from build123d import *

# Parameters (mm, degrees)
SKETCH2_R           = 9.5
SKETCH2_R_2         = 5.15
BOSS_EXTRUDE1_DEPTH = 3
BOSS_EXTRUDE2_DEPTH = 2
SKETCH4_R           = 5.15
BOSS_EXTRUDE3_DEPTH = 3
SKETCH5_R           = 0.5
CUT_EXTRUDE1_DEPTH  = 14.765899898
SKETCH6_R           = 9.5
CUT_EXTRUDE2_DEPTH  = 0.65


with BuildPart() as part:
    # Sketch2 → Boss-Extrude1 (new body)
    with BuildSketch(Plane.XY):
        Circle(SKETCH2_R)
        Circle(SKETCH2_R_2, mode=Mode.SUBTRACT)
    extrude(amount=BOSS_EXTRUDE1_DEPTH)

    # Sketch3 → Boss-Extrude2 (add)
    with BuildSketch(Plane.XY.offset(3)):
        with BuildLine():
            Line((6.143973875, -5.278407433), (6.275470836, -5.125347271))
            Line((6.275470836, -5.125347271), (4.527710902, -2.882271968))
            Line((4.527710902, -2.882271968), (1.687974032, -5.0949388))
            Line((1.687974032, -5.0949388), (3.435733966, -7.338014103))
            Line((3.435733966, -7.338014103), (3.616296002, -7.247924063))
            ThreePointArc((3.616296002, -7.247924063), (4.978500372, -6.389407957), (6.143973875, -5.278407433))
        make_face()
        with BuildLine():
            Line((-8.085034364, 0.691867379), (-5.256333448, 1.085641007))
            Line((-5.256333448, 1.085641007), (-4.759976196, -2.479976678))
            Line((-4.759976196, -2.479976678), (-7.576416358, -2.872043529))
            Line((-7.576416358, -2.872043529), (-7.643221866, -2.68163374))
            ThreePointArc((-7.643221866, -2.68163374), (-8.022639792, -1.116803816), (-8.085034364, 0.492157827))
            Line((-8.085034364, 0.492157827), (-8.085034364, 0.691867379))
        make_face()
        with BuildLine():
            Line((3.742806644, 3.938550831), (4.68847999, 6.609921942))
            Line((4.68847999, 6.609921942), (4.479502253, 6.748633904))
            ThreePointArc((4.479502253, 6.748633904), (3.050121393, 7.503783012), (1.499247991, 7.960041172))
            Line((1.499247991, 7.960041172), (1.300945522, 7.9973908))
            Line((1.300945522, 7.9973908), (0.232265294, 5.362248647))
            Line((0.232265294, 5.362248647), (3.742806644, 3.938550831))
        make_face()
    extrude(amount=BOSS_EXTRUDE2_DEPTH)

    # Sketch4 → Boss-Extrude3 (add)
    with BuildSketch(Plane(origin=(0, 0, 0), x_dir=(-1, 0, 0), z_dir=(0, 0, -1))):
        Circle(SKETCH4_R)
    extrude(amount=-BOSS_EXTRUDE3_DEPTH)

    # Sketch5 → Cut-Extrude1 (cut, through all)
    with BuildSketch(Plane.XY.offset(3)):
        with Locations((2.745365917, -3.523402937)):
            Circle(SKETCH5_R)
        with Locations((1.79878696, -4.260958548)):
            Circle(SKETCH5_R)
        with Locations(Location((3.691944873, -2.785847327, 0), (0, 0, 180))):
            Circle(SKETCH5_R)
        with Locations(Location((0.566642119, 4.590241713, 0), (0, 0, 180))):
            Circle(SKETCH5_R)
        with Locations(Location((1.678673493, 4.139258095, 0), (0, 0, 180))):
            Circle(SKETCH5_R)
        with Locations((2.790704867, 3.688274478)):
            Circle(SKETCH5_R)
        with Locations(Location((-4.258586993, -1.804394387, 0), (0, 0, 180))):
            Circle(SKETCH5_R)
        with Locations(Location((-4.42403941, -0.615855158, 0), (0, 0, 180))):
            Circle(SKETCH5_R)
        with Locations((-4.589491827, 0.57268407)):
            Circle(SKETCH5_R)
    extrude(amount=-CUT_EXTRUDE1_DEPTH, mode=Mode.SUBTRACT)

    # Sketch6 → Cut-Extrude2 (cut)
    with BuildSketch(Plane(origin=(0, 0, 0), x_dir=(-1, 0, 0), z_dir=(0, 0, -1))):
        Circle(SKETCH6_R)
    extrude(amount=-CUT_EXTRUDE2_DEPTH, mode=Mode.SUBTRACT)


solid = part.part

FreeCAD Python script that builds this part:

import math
import FreeCAD as App
import Part
import Sketcher

doc = App.newDocument("Part")
body = doc.addObject("PartDesign::Body", "Body")

# Sketch on XY plane
sketch1 = doc.addObject("Sketcher::SketchObject", "Sketch")
body.addObject(sketch1)
sketch1.AttachmentSupport = (doc.XY_Plane, [""])
sketch1.MapMode = "FlatFace"
sketch1.addGeometry([
    Part.Circle(App.Vector(0, 0, 0), App.Vector(0, 0, 1), 10),
    Part.Circle(App.Vector(0, 0, 0), App.Vector(0, 0, 1), 5),
], False)
sketch1.addConstraint([
    Sketcher.Constraint("Coincident", 0, 3, -1, 1),
    Sketcher.Constraint("Coincident", 1, 3, -1, 1),
    Sketcher.Constraint("Diameter", 0, 19.0),
    Sketcher.Constraint("Diameter", 1, 10.3),
])
pad1 = doc.addObject("PartDesign::Pad", "Pad")
body.addObject(pad1)
pad1.Profile = sketch1
pad1.Length = 3

# Sketch on XY plane
sketch2 = doc.addObject("Sketcher::SketchObject", "Sketch001")
body.addObject(sketch2)
sketch2.AttachmentSupport = (doc.XY_Plane, [""])
sketch2.MapMode = "FlatFace"
sketch2.AttachmentOffset = App.Placement(App.Vector(0, 0, 3), App.Rotation())
sketch2.addGeometry([
    Part.LineSegment(App.Vector(6.143974, -5.278407, 0), App.Vector(6.275471, -5.125347, 0)),  # 0
    Part.LineSegment(App.Vector(6.275471, -5.125347, 0), App.Vector(4.527711, -2.882272, 0)),  # 1
    Part.LineSegment(App.Vector(4.527711, -2.882272, 0), App.Vector(1.687974, -5.094939, 0)),  # 2
    Part.LineSegment(App.Vector(1.687974, -5.094939, 0), App.Vector(3.435734, -7.338014, 0)),  # 3
    Part.LineSegment(App.Vector(3.435734, -7.338014, 0), App.Vector(3.616296, -7.247924, 0)),  # 4
    Part.ArcOfCircle(Part.Circle(App.Vector(0, 0, 0), App.Vector(0, 0, 1), 8.1), math.radians(-63.48345), math.radians(-40.666516)),  # 5
    Part.LineSegment(App.Vector(-5.256333, 1.085641, 0), App.Vector(-8.085034, 0.691867, 0)),  # 6
    Part.LineSegment(App.Vector(-8.085034, 0.691867, 0), App.Vector(-8.085034, 0.492158, 0)),  # 7
    Part.ArcOfCircle(Part.Circle(App.Vector(0, 0, 0), App.Vector(0, 0, 1), 8.1), math.radians(176.51655), math.radians(199.333484)),  # 8
    Part.LineSegment(App.Vector(-7.643222, -2.681634, 0), App.Vector(-7.576416, -2.872044, 0)),  # 9
    Part.LineSegment(App.Vector(-7.576416, -2.872044, 0), App.Vector(-4.759976, -2.479977, 0)),  # 10
    Part.LineSegment(App.Vector(-4.759976, -2.479977, 0), App.Vector(-5.256333, 1.085641, 0)),  # 11
    Part.LineSegment(App.Vector(3.742807, 3.938551, 0), App.Vector(4.68848, 6.609922, 0)),  # 12
    Part.LineSegment(App.Vector(4.68848, 6.609922, 0), App.Vector(4.479502, 6.748634, 0)),  # 13
    Part.ArcOfCircle(Part.Circle(App.Vector(0, 0, 0), App.Vector(0, 0, 1), 8.1), math.radians(56.425213), math.radians(79.333484)),  # 14
    Part.LineSegment(App.Vector(1.499248, 7.960041, 0), App.Vector(1.300946, 7.997391, 0)),  # 15
    Part.LineSegment(App.Vector(1.300946, 7.997391, 0), App.Vector(0.232265, 5.362249, 0)),  # 16
    Part.LineSegment(App.Vector(0.232265, 5.362249, 0), App.Vector(3.742807, 3.938551, 0)),  # 17
], False)
sketch2.addConstraint([
    Sketcher.Constraint("Coincident", 0, 2, 1, 1),
    Sketcher.Constraint("Coincident", 1, 2, 2, 1),
    Sketcher.Constraint("Coincident", 2, 2, 3, 1),
    Sketcher.Constraint("Coincident", 3, 2, 4, 1),
    Sketcher.Constraint("Coincident", 4, 2, 5, 1),
    Sketcher.Constraint("Coincident", 5, 2, 0, 1),
    Sketcher.Constraint("Coincident", 6, 2, 7, 1),
    Sketcher.Constraint("Coincident", 7, 2, 8, 1),
    Sketcher.Constraint("Coincident", 8, 2, 9, 1),
    Sketcher.Constraint("Coincident", 9, 2, 10, 1),
    Sketcher.Constraint("Coincident", 10, 2, 11, 1),
    Sketcher.Constraint("Coincident", 11, 2, 6, 1),
    Sketcher.Constraint("Coincident", 12, 2, 13, 1),
    Sketcher.Constraint("Coincident", 13, 2, 14, 1),
    Sketcher.Constraint("Coincident", 14, 2, 15, 1),
    Sketcher.Constraint("Coincident", 15, 2, 16, 1),
    Sketcher.Constraint("Coincident", 16, 2, 17, 1),
    Sketcher.Constraint("Coincident", 17, 2, 12, 1),
    Sketcher.Constraint("Vertical", 7),
    Sketcher.Constraint("Coincident", 5, 3, -1, 1),
    Sketcher.Constraint("Coincident", 8, 3, -1, 1),
    Sketcher.Constraint("Coincident", 14, 3, -1, 1),
    Sketcher.Constraint("Radius", 5, 8.1),
    Sketcher.Constraint("Radius", 8, 8.1),
    Sketcher.Constraint("Radius", 14, 8.1),
    Sketcher.Constraint("Distance", 2, 3.6),
    Sketcher.Constraint("Distance", 11, 3.6),
    Sketcher.Constraint("DistanceX", 2, 2, 5, 2, 4.456),
    Sketcher.Constraint("Distance", 1, 2.843598),
    Sketcher.Constraint("Distance", 3, 2.843598),
    Sketcher.Constraint("Distance", 10, 2.843598),
    Sketcher.Constraint("Distance", 16, 2.843598),
    Sketcher.Constraint("DistanceY", 7, 2, 7, 1, 0.19971),
    Sketcher.Constraint("DistanceY", 8, 2, 6, 2, 3.373501),
    Sketcher.Constraint("DistanceY", 9, 2, 7, 2, 3.364201),
    Sketcher.Constraint("DistanceX", 6, 2, 11, 2, 2.828701),
    Sketcher.Constraint("Distance", 0, 0.201789),
    Sketcher.Constraint("Distance", 4, 0.201789),
    Sketcher.Constraint("Distance", 9, 0.201789),
    Sketcher.Constraint("Distance", 15, 0.201789),
    Sketcher.Constraint("DistanceX", -1, 1, 0, 2, 6.275471),
    Sketcher.Constraint("DistanceX", -1, 1, 1, 2, 4.527711),
    Sketcher.Constraint("DistanceY", 1, 2, -1, 1, 2.882272),
    Sketcher.Constraint("DistanceX", 8, 2, -1, 1, 7.643222),
    Sketcher.Constraint("DistanceY", -1, 1, 11, 2, 1.085641),
    Sketcher.Constraint("DistanceX", -1, 1, 12, 2, 4.68848),
    Sketcher.Constraint("DistanceY", -1, 1, 12, 2, 6.609922),
    Sketcher.Constraint("DistanceY", -1, 1, 14, 2, 7.960041),
    Sketcher.Constraint("DistanceY", -1, 1, 15, 2, 7.997391),
    Sketcher.Constraint("DistanceY", -1, 1, 16, 2, 5.362249),
    Sketcher.Constraint("DistanceY", -1, 1, 17, 2, 3.938551),
    Sketcher.Constraint("DistanceX", 2, 2, 3, 2, 1.74776),
    Sketcher.Constraint("DistanceY", 12, 2, 13, 2, 0.138712),
    Sketcher.Constraint("DistanceX", 16, 2, 17, 2, 3.510541),
])
pad2 = doc.addObject("PartDesign::Pad", "Pad001")
body.addObject(pad2)
pad2.Profile = sketch2
pad2.Length = 2

# Sketch on XY plane
sketch3 = doc.addObject("Sketcher::SketchObject", "Sketch002")
body.addObject(sketch3)
sketch3.AttachmentSupport = (doc.XY_Plane, [""])
sketch3.MapMode = "FlatFace"
sketch3.addGeometry(Part.Circle(App.Vector(0, 0, 0), App.Vector(0, 0, 1), 5), False)
sketch3.addConstraint([
    Sketcher.Constraint("Coincident", 0, 3, -1, 1),
    Sketcher.Constraint("Diameter", 0, 10.3),
])
pad3 = doc.addObject("PartDesign::Pad", "Pad002")
body.addObject(pad3)
pad3.Profile = sketch3
pad3.Length = 3

# Sketch on XY plane
sketch4 = doc.addObject("Sketcher::SketchObject", "Sketch003")
body.addObject(sketch4)
sketch4.AttachmentSupport = (doc.XY_Plane, [""])
sketch4.MapMode = "FlatFace"
sketch4.AttachmentOffset = App.Placement(App.Vector(0, 0, 3), App.Rotation())
sketch4.addGeometry([
    Part.Circle(App.Vector(2.7, -3.5, 0), App.Vector(0, 0, 1), 0.5),  # 0
    Part.Circle(App.Vector(1.8, -4.3, 0), App.Vector(0, 0, 1), 0.5),  # 1
    Part.Circle(App.Vector(3.7, -2.8, 0), App.Vector(0, 0, 1), 0.5),  # 2
    Part.Circle(App.Vector(0.6, 4.6, 0), App.Vector(0, 0, 1), 0.5),  # 3
    Part.Circle(App.Vector(1.7, 4.1, 0), App.Vector(0, 0, 1), 0.5),  # 4
    Part.Circle(App.Vector(2.8, 3.7, 0), App.Vector(0, 0, 1), 0.5),  # 5
    Part.Circle(App.Vector(-4.3, -1.8, 0), App.Vector(0, 0, 1), 0.5),  # 6
    Part.Circle(App.Vector(-4.4, -0.6, 0), App.Vector(0, 0, 1), 0.5),  # 7
    Part.Circle(App.Vector(-4.6, 0.6, 0), App.Vector(0, 0, 1), 0.5),  # 8
], False)
sketch4.addConstraint([
    Sketcher.Constraint("Equal", 0, 1),
    Sketcher.Constraint("Equal", 1, 2),
    Sketcher.Constraint("Equal", 2, 3),
    Sketcher.Constraint("Equal", 3, 4),
    Sketcher.Constraint("Equal", 4, 5),
    Sketcher.Constraint("Equal", 5, 6),
    Sketcher.Constraint("Equal", 6, 7),
    Sketcher.Constraint("Equal", 7, 8),
    Sketcher.Constraint("Diameter", 0, 1.0),
    Sketcher.Constraint("DistanceY", 1, 3, 3, 3, 8.8512),
    Sketcher.Constraint("DistanceY", 1, 3, -1, 1, 4.260959),
    Sketcher.Constraint("DistanceY", -1, 1, 4, 3, 4.139258),
    Sketcher.Constraint("DistanceX", 7, 3, -1, 1, 4.424039),
    Sketcher.Constraint("DistanceX", 8, 3, -1, 1, 4.589492),
    Sketcher.Constraint("DistanceX", 1, 3, 0, 3, 0.946579),
    Sketcher.Constraint("DistanceX", 0, 3, 2, 3, 0.946579),
    Sketcher.Constraint("DistanceY", 1, 3, 2, 3, 1.475111),
    Sketcher.Constraint("DistanceX", 3, 3, 4, 3, 1.112031),
    Sketcher.Constraint("DistanceX", 4, 3, 2, 3, 2.013271),
    Sketcher.Constraint("DistanceY", 0, 3, 4, 3, 7.662661),
    Sketcher.Constraint("DistanceX", 4, 3, 5, 3, 1.112031),
    Sketcher.Constraint("DistanceY", 2, 3, 5, 3, 6.474122),
    Sketcher.Constraint("DistanceY", 0, 3, 6, 3, 1.719009),
    Sketcher.Constraint("DistanceX", 6, 3, 2, 3, 7.950532),
    Sketcher.Constraint("DistanceY", 6, 3, 7, 3, 1.188539),
    Sketcher.Constraint("DistanceX", 7, 3, 3, 3, 4.990682),
    Sketcher.Constraint("DistanceY", 7, 3, 8, 3, 1.188539),
])
pocket1 = doc.addObject("PartDesign::Pocket", "Pocket")
body.addObject(pocket1)
pocket1.Profile = sketch4
pocket1.Type = "ThroughAll"

# Sketch on XY plane
sketch5 = doc.addObject("Sketcher::SketchObject", "Sketch004")
body.addObject(sketch5)
sketch5.AttachmentSupport = (doc.XY_Plane, [""])
sketch5.MapMode = "FlatFace"
sketch5.addGeometry(Part.Circle(App.Vector(0, 0, 0), App.Vector(0, 0, 1), 10), False)
sketch5.addConstraint([
    Sketcher.Constraint("Coincident", 0, 3, -1, 1),
    Sketcher.Constraint("Diameter", 0, 19.0),
])
pocket2 = doc.addObject("PartDesign::Pocket", "Pocket001")
body.addObject(pocket2)
pocket2.Profile = sketch5
pocket2.Length = 0.65
pocket2.Reversed = True

doc.recompute()
